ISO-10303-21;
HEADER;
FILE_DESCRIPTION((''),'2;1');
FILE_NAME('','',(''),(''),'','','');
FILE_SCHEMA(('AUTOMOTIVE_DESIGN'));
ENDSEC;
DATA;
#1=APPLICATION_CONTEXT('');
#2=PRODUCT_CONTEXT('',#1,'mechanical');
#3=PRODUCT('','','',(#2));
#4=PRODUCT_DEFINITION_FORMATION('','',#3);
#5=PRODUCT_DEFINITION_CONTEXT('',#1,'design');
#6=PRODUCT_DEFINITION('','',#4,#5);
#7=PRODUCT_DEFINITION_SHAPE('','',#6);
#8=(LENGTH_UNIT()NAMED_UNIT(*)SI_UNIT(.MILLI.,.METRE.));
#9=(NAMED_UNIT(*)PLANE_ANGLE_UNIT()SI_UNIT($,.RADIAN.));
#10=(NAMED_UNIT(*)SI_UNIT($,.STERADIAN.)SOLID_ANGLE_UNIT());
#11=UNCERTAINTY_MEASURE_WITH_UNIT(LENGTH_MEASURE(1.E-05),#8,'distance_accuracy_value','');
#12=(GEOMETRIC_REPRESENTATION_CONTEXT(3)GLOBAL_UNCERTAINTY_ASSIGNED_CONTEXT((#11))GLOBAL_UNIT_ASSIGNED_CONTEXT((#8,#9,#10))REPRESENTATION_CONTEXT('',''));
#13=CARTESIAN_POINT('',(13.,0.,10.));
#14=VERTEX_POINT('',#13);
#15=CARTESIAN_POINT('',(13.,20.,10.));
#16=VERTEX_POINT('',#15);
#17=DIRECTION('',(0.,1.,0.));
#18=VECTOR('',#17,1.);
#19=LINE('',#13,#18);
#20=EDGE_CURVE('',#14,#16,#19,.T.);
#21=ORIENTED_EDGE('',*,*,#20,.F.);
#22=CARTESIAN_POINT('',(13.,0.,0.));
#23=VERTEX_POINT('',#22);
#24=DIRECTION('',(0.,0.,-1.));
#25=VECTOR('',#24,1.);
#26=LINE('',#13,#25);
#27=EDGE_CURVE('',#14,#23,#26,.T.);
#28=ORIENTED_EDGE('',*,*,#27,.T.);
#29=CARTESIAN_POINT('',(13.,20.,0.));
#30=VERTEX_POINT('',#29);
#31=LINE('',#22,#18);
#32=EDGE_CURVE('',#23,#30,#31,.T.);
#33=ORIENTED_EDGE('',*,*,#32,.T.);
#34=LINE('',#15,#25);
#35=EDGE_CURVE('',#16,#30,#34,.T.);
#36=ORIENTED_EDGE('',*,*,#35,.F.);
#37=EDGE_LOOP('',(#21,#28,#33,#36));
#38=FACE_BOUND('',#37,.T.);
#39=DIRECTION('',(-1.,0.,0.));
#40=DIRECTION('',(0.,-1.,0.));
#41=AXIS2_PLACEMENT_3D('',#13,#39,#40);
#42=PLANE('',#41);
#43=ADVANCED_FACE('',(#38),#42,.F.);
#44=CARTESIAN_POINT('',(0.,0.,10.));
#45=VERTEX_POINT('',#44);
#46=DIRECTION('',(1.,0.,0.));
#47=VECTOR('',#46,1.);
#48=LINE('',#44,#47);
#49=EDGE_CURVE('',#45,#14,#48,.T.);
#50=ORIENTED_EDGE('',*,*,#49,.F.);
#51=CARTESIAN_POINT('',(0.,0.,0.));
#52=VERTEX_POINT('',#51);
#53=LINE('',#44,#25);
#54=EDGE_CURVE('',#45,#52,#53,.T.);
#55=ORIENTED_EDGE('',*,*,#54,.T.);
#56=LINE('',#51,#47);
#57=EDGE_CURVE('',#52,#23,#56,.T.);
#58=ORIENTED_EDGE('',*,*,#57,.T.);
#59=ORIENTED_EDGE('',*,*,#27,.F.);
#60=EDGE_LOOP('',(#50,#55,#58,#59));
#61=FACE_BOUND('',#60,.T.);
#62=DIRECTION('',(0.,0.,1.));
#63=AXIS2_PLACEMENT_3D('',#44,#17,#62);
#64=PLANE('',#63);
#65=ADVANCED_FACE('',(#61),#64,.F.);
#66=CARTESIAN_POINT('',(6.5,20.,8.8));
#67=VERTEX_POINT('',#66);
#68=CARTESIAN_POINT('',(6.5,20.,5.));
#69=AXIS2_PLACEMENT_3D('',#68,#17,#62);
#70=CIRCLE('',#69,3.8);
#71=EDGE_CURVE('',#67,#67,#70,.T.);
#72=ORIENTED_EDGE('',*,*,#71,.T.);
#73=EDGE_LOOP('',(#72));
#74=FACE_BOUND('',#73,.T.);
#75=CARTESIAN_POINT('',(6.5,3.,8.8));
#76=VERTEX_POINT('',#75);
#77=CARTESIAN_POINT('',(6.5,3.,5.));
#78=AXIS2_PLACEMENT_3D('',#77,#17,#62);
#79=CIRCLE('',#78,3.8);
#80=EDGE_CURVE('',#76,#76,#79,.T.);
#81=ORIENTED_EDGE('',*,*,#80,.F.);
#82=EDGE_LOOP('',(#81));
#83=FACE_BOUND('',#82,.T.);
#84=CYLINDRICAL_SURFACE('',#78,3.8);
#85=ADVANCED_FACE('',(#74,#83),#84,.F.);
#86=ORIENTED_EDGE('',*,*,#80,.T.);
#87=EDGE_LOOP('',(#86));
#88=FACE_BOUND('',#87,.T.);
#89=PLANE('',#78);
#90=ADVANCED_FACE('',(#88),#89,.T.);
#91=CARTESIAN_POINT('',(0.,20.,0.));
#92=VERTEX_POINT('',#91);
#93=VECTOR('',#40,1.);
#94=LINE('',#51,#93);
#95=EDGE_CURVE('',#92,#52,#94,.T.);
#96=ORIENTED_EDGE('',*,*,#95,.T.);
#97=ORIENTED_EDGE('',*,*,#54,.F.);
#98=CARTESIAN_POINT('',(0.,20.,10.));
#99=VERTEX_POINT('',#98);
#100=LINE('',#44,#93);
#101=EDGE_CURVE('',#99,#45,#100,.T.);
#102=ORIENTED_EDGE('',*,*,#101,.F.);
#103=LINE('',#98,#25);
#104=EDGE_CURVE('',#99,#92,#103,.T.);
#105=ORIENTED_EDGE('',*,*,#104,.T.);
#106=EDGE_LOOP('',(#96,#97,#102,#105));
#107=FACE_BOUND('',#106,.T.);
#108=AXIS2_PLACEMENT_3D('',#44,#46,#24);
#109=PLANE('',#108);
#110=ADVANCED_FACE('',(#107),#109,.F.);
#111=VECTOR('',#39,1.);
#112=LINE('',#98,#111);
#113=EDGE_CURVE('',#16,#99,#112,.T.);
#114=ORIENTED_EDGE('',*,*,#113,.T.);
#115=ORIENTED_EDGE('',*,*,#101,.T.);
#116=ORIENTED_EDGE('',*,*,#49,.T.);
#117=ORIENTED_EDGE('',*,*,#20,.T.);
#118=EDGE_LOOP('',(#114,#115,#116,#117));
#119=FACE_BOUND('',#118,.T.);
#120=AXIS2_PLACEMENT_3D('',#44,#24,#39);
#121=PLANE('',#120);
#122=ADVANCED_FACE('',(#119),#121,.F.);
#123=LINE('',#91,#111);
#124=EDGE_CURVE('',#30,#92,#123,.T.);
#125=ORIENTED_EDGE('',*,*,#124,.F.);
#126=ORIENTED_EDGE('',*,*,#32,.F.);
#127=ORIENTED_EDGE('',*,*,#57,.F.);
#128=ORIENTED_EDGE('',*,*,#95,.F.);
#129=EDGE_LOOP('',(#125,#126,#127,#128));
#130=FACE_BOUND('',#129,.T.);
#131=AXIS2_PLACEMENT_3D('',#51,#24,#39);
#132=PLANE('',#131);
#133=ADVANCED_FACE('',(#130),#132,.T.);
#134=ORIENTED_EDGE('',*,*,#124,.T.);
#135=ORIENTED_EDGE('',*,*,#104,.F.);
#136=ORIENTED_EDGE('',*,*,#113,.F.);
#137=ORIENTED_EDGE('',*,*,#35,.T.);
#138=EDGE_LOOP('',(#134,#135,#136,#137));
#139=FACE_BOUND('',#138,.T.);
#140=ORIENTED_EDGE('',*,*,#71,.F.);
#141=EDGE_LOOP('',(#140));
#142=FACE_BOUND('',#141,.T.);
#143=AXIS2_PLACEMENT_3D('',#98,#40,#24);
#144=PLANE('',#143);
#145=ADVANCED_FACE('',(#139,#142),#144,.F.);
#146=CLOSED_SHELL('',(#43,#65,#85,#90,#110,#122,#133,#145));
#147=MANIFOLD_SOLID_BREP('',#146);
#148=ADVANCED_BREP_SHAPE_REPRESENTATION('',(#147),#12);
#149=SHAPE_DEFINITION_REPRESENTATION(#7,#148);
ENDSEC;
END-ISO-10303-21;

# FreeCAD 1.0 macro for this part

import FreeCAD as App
import Part
import Sketcher

V = App.Vector
Q = App.Units.Quantity


def add_polygon(sketch, points):
    """Adds a closed chain of lines whose ends are joined by coincident constraints."""
    first, n = sketch.GeometryCount, len(points)
    for a, b in zip(points, points[1:] + points[:1]):
        sketch.addGeometry(Part.LineSegment(App.Vector(*a, 0), App.Vector(*b, 0)), False)
    for i in range(n):
        sketch.addConstraint(Sketcher.Constraint("Coincident", first + i, 2, first + (i + 1) % n, 1))

doc = App.newDocument("Part")
body = doc.addObject("PartDesign::Body", "Body")

sketch1 = doc.addObject("Sketcher::SketchObject", "Sketch")
body.addObject(sketch1)
sketch1.AttachmentSupport = (doc.XY_Plane, [""])
sketch1.MapMode = "FlatFace"
add_polygon(sketch1, [(0, 20), (0, 0), (13, 0), (13, 20)])
sketch1.addConstraint([
    Sketcher.Constraint("Vertical", 0),
    Sketcher.Constraint("Horizontal", 1),
    Sketcher.Constraint("Vertical", 2),
    Sketcher.Constraint("Horizontal", 3),
    Sketcher.Constraint("Coincident", 0, 2, -1, 1),
    Sketcher.Constraint("DistanceX", 1, 1, 1, 2, Q("13 mm")),
    Sketcher.Constraint("DistanceY", 0, 2, 0, 1, Q("20 mm")),
])
pad1 = doc.addObject("PartDesign::Pad", "Pad")
body.addObject(pad1)
pad1.Profile = sketch1
pad1.Length = 10

sketch2 = doc.addObject("Sketcher::SketchObject", "Sketch001")
body.addObject(sketch2)
sketch2.AttachmentSupport = (doc.XZ_Plane, [""])
sketch2.MapMode = "FlatFace"
sketch2.AttachmentOffset = App.Placement(V(0, 0, -20), App.Rotation())
sketch2.addGeometry(Part.Circle(V(6.5, 5, 0), V(0, 0, 1), 3.8), False)
sketch2.addConstraint([
    Sketcher.Constraint("Diameter", 0, Q("7.6 mm")),
    Sketcher.Constraint("DistanceY", -1, 1, 0, 3, Q("5 mm")),
    Sketcher.Constraint("DistanceX", -1, 1, 0, 3, Q("6.5 mm")),
])
pocket1 = doc.addObject("PartDesign::Pocket", "Pocket")
body.addObject(pocket1)
pocket1.Profile = sketch2
pocket1.Length = 17
pocket1.Reversed = True

doc.recompute()
